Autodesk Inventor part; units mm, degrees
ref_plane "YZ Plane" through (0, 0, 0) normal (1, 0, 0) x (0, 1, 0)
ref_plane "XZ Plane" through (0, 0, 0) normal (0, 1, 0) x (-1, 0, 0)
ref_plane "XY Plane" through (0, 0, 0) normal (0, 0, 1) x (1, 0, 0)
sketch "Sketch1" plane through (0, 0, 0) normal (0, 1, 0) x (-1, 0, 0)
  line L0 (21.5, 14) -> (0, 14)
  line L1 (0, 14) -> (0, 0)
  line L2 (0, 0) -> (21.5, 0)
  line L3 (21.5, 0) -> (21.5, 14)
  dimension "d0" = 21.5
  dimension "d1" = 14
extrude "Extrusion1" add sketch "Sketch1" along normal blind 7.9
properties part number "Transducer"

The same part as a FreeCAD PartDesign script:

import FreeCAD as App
import Part
import Sketcher
from FreeCAD import Vector
Q = App.Units.Quantity


def add_polygon(sketch, points):
    """Adds a closed chain of lines whose ends are joined by coincident constraints."""
    first, n = sketch.GeometryCount, len(points)
    for a, b in zip(points, points[1:] + points[:1]):
        sketch.addGeometry(Part.LineSegment(App.Vector(*a, 0), App.Vector(*b, 0)), False)
    for i in range(n):
        sketch.addConstraint(Sketcher.Constraint("Coincident", first + i, 2, first + (i + 1) % n, 1))

doc = App.newDocument("Part")
body = doc.addObject("PartDesign::Body", "Body")

sketch1 = doc.addObject("Sketcher::SketchObject", "Sketch")
body.addObject(sketch1)
sketch1.AttachmentSupport = (doc.XZ_Plane, [""])
sketch1.MapMode = "FlatFace"
add_polygon(sketch1, [(-21.5, 0), (-21.5, 14), (0, 14), (0, 0)])
sketch1.addConstraint([
    Sketcher.Constraint("Vertical", 0),
    Sketcher.Constraint("Horizontal", 1),
    Sketcher.Constraint("Vertical", 2),
    Sketcher.Constraint("Horizontal", 3),
    Sketcher.Constraint("Coincident", 2, 2, -1, 1),
    Sketcher.Constraint("DistanceY", 0, 1, 0, 2, Q("14 mm")),
    Sketcher.Constraint("DistanceX", 1, 1, 1, 2, Q("21.5 mm")),
])
pad1 = doc.addObject("PartDesign::Pad", "Pad")
body.addObject(pad1)
pad1.Profile = sketch1
pad1.Length = 7.9
pad1.Reversed = True

doc.recompute()
